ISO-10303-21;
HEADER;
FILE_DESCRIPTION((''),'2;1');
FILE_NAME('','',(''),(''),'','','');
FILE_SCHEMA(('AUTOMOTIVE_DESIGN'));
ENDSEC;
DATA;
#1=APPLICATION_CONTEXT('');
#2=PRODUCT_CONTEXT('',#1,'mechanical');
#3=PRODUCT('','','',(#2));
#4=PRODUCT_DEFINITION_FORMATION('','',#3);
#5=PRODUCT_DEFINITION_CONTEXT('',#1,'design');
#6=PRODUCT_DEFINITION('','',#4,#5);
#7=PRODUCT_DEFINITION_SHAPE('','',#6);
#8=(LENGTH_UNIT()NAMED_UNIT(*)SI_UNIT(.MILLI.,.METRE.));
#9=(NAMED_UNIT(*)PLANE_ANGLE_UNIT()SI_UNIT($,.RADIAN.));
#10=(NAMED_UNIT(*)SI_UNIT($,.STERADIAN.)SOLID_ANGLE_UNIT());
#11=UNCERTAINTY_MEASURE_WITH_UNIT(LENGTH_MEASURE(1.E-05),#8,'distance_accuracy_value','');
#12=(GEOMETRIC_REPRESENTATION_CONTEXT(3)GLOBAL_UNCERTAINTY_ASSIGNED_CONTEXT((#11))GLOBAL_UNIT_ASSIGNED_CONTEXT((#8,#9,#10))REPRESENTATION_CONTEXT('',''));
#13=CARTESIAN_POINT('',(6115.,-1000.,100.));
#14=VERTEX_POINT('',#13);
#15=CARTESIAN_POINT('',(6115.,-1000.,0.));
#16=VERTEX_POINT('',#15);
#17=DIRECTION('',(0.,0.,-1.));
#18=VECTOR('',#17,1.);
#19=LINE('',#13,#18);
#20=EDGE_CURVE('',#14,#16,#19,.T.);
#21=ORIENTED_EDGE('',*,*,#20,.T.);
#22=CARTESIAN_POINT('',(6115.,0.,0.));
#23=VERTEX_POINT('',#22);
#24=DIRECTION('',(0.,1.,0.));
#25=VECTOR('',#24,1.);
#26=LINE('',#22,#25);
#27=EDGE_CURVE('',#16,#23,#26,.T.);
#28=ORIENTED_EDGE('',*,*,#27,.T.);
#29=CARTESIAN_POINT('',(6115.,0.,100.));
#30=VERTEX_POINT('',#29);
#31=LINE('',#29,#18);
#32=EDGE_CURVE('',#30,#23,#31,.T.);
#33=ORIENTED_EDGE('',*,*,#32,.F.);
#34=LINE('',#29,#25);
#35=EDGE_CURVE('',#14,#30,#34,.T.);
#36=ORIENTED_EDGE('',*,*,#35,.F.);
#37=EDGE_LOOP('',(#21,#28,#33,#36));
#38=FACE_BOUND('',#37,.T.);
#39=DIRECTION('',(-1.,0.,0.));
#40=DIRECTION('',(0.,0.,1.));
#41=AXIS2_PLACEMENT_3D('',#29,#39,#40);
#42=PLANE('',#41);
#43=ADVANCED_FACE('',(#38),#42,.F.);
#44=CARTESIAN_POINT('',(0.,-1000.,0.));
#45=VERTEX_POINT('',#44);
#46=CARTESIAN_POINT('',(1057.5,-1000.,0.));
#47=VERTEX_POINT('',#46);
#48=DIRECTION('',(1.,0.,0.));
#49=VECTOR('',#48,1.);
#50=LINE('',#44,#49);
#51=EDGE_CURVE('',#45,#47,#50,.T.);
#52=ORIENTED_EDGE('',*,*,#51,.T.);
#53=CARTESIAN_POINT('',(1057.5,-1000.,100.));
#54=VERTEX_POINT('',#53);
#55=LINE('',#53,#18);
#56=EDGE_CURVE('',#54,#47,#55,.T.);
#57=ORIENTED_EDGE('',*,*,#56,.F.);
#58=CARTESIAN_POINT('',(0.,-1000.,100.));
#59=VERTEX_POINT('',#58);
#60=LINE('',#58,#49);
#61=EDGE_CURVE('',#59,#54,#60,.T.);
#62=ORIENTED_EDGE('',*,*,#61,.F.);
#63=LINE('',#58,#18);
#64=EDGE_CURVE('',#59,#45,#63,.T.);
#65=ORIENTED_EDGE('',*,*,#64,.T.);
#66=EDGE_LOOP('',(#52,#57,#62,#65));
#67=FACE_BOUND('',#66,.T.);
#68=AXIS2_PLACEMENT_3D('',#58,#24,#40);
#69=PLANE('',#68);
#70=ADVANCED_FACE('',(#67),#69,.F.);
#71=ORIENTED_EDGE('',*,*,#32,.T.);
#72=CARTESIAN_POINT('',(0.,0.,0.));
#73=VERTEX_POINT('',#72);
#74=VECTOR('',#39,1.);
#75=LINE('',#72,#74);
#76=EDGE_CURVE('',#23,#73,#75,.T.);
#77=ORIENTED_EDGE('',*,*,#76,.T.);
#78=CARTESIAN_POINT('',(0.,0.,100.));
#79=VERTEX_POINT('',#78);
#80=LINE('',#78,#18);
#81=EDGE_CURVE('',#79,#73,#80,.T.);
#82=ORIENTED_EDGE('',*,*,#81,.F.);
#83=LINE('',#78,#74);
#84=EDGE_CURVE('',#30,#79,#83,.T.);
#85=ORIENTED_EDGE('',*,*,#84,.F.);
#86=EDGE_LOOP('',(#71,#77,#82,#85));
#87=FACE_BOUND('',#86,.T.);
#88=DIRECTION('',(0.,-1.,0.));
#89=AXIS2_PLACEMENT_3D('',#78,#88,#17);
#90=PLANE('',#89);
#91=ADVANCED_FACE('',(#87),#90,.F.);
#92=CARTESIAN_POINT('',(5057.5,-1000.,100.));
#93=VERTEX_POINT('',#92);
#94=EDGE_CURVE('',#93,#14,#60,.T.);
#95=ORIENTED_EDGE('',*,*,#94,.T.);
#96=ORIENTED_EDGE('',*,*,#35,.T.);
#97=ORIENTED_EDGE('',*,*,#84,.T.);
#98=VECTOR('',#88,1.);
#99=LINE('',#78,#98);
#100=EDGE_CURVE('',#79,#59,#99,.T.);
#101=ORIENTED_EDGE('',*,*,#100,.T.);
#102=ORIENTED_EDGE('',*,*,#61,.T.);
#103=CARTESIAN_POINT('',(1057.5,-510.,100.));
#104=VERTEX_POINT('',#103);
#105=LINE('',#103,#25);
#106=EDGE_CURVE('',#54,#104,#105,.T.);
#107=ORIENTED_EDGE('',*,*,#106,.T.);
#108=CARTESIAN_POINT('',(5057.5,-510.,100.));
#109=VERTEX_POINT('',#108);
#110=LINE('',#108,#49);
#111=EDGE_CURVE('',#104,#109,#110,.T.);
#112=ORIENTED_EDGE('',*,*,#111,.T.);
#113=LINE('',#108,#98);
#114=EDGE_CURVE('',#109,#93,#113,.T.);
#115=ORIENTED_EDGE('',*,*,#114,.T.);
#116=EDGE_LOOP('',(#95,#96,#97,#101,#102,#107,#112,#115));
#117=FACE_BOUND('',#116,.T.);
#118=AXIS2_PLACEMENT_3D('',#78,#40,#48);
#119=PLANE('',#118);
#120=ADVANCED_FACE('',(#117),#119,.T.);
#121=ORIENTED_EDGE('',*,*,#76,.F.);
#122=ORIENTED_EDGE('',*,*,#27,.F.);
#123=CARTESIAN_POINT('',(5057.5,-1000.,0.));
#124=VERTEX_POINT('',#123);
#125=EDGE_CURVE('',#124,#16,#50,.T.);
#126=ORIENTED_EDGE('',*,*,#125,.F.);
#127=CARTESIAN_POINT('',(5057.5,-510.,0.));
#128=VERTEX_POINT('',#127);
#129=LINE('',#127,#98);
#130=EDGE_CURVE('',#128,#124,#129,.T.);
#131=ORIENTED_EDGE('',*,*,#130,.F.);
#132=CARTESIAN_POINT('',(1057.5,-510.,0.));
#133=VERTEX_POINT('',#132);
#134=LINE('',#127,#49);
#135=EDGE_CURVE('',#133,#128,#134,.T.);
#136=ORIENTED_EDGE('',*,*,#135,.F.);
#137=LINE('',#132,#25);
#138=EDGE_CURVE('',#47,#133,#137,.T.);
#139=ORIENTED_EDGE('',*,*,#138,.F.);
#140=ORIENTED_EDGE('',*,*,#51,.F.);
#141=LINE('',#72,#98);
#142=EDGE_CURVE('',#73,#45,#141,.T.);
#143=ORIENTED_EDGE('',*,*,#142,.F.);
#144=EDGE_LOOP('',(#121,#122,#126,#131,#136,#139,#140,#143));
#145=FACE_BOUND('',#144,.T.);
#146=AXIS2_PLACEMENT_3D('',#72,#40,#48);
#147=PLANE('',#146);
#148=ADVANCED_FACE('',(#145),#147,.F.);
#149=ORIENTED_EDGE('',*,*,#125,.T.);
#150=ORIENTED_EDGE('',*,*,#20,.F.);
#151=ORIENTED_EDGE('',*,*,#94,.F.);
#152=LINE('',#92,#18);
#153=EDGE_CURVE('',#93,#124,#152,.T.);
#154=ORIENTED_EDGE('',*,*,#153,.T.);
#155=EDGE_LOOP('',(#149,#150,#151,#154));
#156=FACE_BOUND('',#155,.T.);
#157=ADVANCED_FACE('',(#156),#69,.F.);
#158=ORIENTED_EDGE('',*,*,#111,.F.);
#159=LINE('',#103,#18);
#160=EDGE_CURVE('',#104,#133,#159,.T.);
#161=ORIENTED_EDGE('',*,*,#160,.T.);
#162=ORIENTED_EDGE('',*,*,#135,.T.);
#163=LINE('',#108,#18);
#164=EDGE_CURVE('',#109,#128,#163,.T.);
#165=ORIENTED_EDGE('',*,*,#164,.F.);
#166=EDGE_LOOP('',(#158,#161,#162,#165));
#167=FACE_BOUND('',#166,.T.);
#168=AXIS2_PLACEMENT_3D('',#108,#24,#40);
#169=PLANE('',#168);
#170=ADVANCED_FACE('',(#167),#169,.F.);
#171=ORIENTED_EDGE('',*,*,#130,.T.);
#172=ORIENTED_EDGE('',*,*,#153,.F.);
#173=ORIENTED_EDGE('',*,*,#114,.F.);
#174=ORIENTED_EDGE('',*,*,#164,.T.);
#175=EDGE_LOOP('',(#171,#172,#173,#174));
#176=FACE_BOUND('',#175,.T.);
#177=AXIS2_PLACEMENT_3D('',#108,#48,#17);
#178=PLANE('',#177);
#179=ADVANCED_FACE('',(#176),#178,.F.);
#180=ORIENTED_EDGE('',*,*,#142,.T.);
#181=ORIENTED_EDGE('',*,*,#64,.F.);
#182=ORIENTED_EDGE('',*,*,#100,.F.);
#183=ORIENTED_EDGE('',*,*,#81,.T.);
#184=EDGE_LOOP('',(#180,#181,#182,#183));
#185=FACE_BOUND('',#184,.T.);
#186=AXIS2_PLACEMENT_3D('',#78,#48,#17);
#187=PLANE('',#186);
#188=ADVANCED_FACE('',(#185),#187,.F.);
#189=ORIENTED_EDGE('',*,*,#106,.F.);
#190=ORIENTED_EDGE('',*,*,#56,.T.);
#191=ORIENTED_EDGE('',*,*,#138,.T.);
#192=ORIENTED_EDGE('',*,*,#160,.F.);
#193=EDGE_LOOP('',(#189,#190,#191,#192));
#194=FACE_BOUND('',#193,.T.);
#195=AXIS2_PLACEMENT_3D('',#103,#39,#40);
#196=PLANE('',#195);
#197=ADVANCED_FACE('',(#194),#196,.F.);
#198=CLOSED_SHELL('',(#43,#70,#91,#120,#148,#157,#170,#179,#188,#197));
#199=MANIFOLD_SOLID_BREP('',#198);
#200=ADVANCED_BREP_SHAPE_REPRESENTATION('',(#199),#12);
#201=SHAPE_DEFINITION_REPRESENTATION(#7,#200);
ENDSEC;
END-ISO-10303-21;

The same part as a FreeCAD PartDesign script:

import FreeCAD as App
import Part
import Sketcher
from FreeCAD import Vector
Q = App.Units.Quantity

doc = App.newDocument("Part")
body = doc.addObject("PartDesign::Body", "Body")

# Sketch on XY plane
sketch1 = body.newObject("Sketcher::SketchObject", "Sketch")
sketch1.AttachmentSupport = (doc.getObject("XY_Plane"), [""])
sketch1.MapMode = "FlatFace"
sketch1.addGeometry(Part.LineSegment(Vector(0, 0, 0), Vector(0, -1000, 0)), False)
sketch1.addGeometry(Part.LineSegment(Vector(0, -1000, 0), Vector(6115, -1000, 0)), False)
sketch1.addGeometry(Part.LineSegment(Vector(6115, -1000, 0), Vector(6115, 0, 0)), False)
sketch1.addGeometry(Part.LineSegment(Vector(6115, 0, 0), Vector(0, 0, 0)), False)
sketch1.addConstraint(Sketcher.Constraint("Coincident", 0, 2, 1, 1))
sketch1.addConstraint(Sketcher.Constraint("Coincident", 1, 2, 2, 1))
sketch1.addConstraint(Sketcher.Constraint("Coincident", 2, 2, 3, 1))
sketch1.addConstraint(Sketcher.Constraint("Coincident", 3, 2, 0, 1))
sketch1.addConstraint(Sketcher.Constraint("Vertical", 0))
sketch1.addConstraint(Sketcher.Constraint("Horizontal", 1))
sketch1.addConstraint(Sketcher.Constraint("Vertical", 2))
sketch1.addConstraint(Sketcher.Constraint("Horizontal", 3))
sketch1.addConstraint(Sketcher.Constraint("Coincident", 3, 2, -1, 1))
sketch1.addConstraint(Sketcher.Constraint("DistanceX", 1, 1, 1, 2, Q("6115 mm")))
sketch1.addConstraint(Sketcher.Constraint("DistanceY", 0, 2, 0, 1, Q("1000 mm")))
pad1 = body.newObject("PartDesign::Pad", "Pad")
pad1.Profile = sketch1
pad1.Length = 100

# Sketch on XY plane
sketch2 = body.newObject("Sketcher::SketchObject", "Sketch001")
sketch2.AttachmentSupport = (doc.getObject("XY_Plane"), [""])
sketch2.MapMode = "FlatFace"
sketch2.addGeometry(Part.LineSegment(Vector(5058, -510, 0), Vector(5058, -1000, 0)), False)
sketch2.addGeometry(Part.LineSegment(Vector(5058, -1000, 0), Vector(1058, -1000, 0)), False)
sketch2.addGeometry(Part.LineSegment(Vector(1058, -1000, 0), Vector(1058, -510, 0)), False)
sketch2.addGeometry(Part.LineSegment(Vector(1058, -510, 0), Vector(5058, -510, 0)), False)
sketch2.addConstraint(Sketcher.Constraint("Coincident", 0, 2, 1, 1))
sketch2.addConstraint(Sketcher.Constraint("Coincident", 1, 2, 2, 1))
sketch2.addConstraint(Sketcher.Constraint("Coincident", 2, 2, 3, 1))
sketch2.addConstraint(Sketcher.Constraint("Coincident", 3, 2, 0, 1))
sketch2.addConstraint(Sketcher.Constraint("Vertical", 0))
sketch2.addConstraint(Sketcher.Constraint("Horizontal", 1))
sketch2.addConstraint(Sketcher.Constraint("Vertical", 2))
sketch2.addConstraint(Sketcher.Constraint("Horizontal", 3))
sketch2.addConstraint(Sketcher.Constraint("DistanceX", 1, 2, 1, 1, Q("4000 mm")))
sketch2.addConstraint(Sketcher.Constraint("DistanceY", 0, 2, 0, 1, Q("490 mm")))
sketch2.addConstraint(Sketcher.Constraint("DistanceY", 0, 2, -1, 1, Q("1000 mm")))
sketch2.addConstraint(Sketcher.Constraint("DistanceX", -1, 1, 0, 2, Q("5057.5 mm")))
pocket1 = body.newObject("PartDesign::Pocket", "Pocket")
pocket1.Profile = sketch2
pocket1.Type = "ThroughAll"
pocket1.Reversed = True

doc.recompute()
